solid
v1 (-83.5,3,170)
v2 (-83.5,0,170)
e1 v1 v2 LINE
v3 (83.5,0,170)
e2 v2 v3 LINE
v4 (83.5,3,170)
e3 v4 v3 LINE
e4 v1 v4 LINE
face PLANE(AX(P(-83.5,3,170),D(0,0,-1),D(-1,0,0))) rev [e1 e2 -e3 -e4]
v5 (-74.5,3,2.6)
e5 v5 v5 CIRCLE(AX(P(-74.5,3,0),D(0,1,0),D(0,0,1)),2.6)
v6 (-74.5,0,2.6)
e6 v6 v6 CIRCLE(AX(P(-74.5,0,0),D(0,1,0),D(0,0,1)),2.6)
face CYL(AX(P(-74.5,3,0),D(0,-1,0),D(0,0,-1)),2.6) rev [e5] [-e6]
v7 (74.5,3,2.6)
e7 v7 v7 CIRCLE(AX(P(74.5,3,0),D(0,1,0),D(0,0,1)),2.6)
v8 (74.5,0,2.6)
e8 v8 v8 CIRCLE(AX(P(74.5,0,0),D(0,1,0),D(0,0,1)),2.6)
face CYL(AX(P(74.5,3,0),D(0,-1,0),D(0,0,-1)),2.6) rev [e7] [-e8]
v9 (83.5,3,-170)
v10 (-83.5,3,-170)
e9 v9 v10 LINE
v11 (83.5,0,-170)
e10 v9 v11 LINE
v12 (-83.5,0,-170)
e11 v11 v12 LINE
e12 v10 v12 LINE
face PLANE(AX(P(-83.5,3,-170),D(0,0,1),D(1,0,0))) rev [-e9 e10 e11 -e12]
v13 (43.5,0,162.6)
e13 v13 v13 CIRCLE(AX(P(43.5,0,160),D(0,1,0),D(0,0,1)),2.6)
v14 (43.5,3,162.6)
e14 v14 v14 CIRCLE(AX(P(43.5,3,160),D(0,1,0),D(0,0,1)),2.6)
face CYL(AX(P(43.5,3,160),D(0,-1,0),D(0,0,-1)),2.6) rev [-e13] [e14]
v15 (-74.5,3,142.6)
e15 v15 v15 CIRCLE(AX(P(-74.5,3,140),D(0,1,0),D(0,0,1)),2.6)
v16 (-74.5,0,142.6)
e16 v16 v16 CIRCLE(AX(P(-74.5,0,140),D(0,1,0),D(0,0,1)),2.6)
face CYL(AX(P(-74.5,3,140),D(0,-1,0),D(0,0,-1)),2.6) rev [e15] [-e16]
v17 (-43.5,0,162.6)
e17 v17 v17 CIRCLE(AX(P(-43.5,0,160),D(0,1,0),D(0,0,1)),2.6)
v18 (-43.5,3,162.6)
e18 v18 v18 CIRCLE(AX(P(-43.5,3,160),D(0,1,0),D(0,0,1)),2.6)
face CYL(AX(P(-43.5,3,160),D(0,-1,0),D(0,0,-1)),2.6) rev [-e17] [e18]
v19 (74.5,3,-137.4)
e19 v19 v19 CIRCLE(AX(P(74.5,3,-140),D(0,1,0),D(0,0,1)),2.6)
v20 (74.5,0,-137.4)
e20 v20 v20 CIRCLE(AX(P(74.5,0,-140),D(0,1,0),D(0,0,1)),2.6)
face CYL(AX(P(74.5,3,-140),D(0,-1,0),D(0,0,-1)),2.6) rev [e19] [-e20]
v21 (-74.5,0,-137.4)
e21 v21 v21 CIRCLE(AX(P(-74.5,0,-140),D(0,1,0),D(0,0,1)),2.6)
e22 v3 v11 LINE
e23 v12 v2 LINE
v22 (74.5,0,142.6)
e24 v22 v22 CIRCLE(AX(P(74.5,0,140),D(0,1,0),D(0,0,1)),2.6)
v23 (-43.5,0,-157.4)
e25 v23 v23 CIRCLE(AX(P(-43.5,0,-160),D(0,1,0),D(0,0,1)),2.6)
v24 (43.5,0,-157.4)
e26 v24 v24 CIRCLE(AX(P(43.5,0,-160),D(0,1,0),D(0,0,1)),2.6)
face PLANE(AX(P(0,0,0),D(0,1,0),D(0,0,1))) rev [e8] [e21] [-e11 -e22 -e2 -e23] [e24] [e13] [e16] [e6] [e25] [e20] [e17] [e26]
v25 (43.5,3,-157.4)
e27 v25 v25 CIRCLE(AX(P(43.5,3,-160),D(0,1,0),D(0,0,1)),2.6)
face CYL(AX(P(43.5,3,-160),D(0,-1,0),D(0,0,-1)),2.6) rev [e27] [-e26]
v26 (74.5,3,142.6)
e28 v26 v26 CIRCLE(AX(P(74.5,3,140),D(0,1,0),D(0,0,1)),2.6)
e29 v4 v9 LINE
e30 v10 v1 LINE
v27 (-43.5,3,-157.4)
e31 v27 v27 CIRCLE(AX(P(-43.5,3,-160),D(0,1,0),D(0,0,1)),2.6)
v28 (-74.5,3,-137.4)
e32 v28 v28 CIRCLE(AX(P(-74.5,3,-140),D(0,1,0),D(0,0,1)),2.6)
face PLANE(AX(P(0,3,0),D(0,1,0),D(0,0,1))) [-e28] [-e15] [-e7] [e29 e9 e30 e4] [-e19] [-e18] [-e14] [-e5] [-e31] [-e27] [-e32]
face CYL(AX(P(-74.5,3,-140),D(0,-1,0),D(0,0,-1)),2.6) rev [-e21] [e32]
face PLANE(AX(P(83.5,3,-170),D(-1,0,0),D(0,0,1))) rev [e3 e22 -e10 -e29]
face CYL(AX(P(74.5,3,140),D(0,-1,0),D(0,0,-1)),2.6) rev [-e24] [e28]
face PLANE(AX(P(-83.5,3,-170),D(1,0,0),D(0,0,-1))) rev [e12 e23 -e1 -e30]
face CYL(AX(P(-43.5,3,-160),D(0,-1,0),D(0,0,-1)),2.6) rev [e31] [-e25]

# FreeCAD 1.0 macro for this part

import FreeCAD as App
import Part
import Sketcher

doc = App.newDocument("Part")
params = doc.addObject("Spreadsheet::Sheet", "Params")
for row, (alias, value) in enumerate([
    ("sketch1_diameter", "5.2 mm"),
    ("sketch1_width", "167 mm"),
    ("sketch1_height", "340 mm"),
    ("pad1_length", "3 mm"),
], start=1):
    params.set(f"A{row}", alias)
    params.set(f"B{row}", "=" + value)
    params.setAlias(f"B{row}", alias)

body = doc.addObject("PartDesign::Body", "Body")

sketch1 = body.newObject("Sketcher::SketchObject", "Sketch")
sketch1.AttachmentSupport = (doc.getObject("XZ_Plane"), [""])
sketch1.MapMode = "FlatFace"
sketch1.addGeometry(Part.LineSegment(App.Vector(-83.5, -170, 0), App.Vector(-83.5, 170, 0)), False)
sketch1.addGeometry(Part.LineSegment(App.Vector(-83.5, 170, 0), App.Vector(83.5, 170, 0)), False)
sketch1.addGeometry(Part.LineSegment(App.Vector(83.5, 170, 0), App.Vector(83.5, -170, 0)), False)
sketch1.addGeometry(Part.LineSegment(App.Vector(83.5, -170, 0), App.Vector(-83.5, -170, 0)), False)
sketch1.addGeometry(Part.Circle(App.Vector(-74.5, 140, 0), App.Vector(0, 0, 1), 2.6), False)
sketch1.addGeometry(Part.Circle(App.Vector(-43.5, 160, 0), App.Vector(0, 0, 1), 2.6), False)
sketch1.addGeometry(Part.Circle(App.Vector(43.5, 160, 0), App.Vector(0, 0, 1), 2.6), False)
sketch1.addGeometry(Part.Circle(App.Vector(74.5, 140, 0), App.Vector(0, 0, 1), 2.6), False)
sketch1.addGeometry(Part.Circle(App.Vector(-74.5, 0, 0), App.Vector(0, 0, 1), 2.6), False)
sketch1.addGeometry(Part.Circle(App.Vector(-74.5, -140, 0), App.Vector(0, 0, 1), 2.6), False)
sketch1.addGeometry(Part.Circle(App.Vector(-43.5, -160, 0), App.Vector(0, 0, 1), 2.6), False)
sketch1.addGeometry(Part.Circle(App.Vector(74.5, 0, 0), App.Vector(0, 0, 1), 2.6), False)
sketch1.addGeometry(Part.Circle(App.Vector(43.5, -160, 0), App.Vector(0, 0, 1), 2.6), False)
sketch1.addGeometry(Part.Circle(App.Vector(74.5, -140, 0), App.Vector(0, 0, 1), 2.6), False)
sketch1.addConstraint(Sketcher.Constraint("Coincident", 0, 2, 1, 1))
sketch1.addConstraint(Sketcher.Constraint("Coincident", 1, 2, 2, 1))
sketch1.addConstraint(Sketcher.Constraint("Coincident", 2, 2, 3, 1))
sketch1.addConstraint(Sketcher.Constraint("Coincident", 3, 2, 0, 1))
sketch1.addConstraint(Sketcher.Constraint("Vertical", 0))
sketch1.addConstraint(Sketcher.Constraint("Horizontal", 1))
sketch1.addConstraint(Sketcher.Constraint("Vertical", 2))
sketch1.addConstraint(Sketcher.Constraint("Horizontal", 3))
sketch1.addConstraint(Sketcher.Constraint("Equal", 4, 5))
sketch1.addConstraint(Sketcher.Constraint("Equal", 5, 6))
sketch1.addConstraint(Sketcher.Constraint("Equal", 6, 7))
sketch1.addConstraint(Sketcher.Constraint("Equal", 7, 8))
sketch1.addConstraint(Sketcher.Constraint("Equal", 8, 9))
sketch1.addConstraint(Sketcher.Constraint("Equal", 9, 10))
sketch1.addConstraint(Sketcher.Constraint("Equal", 10, 11))
sketch1.addConstraint(Sketcher.Constraint("Equal", 11, 12))
sketch1.addConstraint(Sketcher.Constraint("Equal", 12, 13))
sketch1.addConstraint(Sketcher.Constraint("Symmetric", 7, 3, 9, 3, -1, 1))
sketch1.addConstraint(Sketcher.Constraint("Symmetric", 6, 3, 10, 3, -1, 1))
sketch1.addConstraint(Sketcher.Constraint("Symmetric", 8, 3, 11, 3, -1, 1))
sketch1.addConstraint(Sketcher.Constraint("Symmetric", 5, 3, 12, 3, -1, 1))
sketch1.addConstraint(Sketcher.Constraint("Symmetric", 4, 3, 13, 3, -1, 1))
sketch1.addConstraint(Sketcher.Constraint("Symmetric", 0, 2, 2, 2, -1, 1))
sketch1.addConstraint(Sketcher.Constraint("Symmetric", 5, 3, 6, 3, -2))
sketch1.addConstraint(Sketcher.Constraint("Symmetric", 4, 3, 7, 3, -2))
sketch1.addConstraint(Sketcher.Constraint("PointOnObject", 8, 3, -1))
sketch1.addConstraint(Sketcher.Constraint("Vertical", 4, 3, 8, 3))
sketch1.addConstraint(Sketcher.Constraint("Diameter", 4, 5.2))
sketch1.addConstraint(Sketcher.Constraint("DistanceX", 1, 1, 1, 2, 167.0))
sketch1.addConstraint(Sketcher.Constraint("DistanceY", 0, 1, 0, 2, 340.0))
sketch1.addConstraint(Sketcher.Constraint("DistanceY", -1, 1, 4, 3, 140.0))
sketch1.addConstraint(Sketcher.Constraint("DistanceY", -1, 1, 5, 3, 160.0))
sketch1.addConstraint(Sketcher.Constraint("DistanceX", 4, 3, 5, 3, 31.0))
sketch1.addConstraint(Sketcher.Constraint("DistanceX", 5, 3, 6, 3, 87.0))
sketch1.setExpression("Constraints[27]", "Params.sketch1_diameter")
sketch1.setExpression("Constraints[28]", "Params.sketch1_width")
sketch1.setExpression("Constraints[29]", "Params.sketch1_height")
pad1 = body.newObject("PartDesign::Pad", "Pad")
pad1.Profile = sketch1
pad1.setExpression("Length", "Params.pad1_length")
pad1.Reversed = True

doc.recompute()
